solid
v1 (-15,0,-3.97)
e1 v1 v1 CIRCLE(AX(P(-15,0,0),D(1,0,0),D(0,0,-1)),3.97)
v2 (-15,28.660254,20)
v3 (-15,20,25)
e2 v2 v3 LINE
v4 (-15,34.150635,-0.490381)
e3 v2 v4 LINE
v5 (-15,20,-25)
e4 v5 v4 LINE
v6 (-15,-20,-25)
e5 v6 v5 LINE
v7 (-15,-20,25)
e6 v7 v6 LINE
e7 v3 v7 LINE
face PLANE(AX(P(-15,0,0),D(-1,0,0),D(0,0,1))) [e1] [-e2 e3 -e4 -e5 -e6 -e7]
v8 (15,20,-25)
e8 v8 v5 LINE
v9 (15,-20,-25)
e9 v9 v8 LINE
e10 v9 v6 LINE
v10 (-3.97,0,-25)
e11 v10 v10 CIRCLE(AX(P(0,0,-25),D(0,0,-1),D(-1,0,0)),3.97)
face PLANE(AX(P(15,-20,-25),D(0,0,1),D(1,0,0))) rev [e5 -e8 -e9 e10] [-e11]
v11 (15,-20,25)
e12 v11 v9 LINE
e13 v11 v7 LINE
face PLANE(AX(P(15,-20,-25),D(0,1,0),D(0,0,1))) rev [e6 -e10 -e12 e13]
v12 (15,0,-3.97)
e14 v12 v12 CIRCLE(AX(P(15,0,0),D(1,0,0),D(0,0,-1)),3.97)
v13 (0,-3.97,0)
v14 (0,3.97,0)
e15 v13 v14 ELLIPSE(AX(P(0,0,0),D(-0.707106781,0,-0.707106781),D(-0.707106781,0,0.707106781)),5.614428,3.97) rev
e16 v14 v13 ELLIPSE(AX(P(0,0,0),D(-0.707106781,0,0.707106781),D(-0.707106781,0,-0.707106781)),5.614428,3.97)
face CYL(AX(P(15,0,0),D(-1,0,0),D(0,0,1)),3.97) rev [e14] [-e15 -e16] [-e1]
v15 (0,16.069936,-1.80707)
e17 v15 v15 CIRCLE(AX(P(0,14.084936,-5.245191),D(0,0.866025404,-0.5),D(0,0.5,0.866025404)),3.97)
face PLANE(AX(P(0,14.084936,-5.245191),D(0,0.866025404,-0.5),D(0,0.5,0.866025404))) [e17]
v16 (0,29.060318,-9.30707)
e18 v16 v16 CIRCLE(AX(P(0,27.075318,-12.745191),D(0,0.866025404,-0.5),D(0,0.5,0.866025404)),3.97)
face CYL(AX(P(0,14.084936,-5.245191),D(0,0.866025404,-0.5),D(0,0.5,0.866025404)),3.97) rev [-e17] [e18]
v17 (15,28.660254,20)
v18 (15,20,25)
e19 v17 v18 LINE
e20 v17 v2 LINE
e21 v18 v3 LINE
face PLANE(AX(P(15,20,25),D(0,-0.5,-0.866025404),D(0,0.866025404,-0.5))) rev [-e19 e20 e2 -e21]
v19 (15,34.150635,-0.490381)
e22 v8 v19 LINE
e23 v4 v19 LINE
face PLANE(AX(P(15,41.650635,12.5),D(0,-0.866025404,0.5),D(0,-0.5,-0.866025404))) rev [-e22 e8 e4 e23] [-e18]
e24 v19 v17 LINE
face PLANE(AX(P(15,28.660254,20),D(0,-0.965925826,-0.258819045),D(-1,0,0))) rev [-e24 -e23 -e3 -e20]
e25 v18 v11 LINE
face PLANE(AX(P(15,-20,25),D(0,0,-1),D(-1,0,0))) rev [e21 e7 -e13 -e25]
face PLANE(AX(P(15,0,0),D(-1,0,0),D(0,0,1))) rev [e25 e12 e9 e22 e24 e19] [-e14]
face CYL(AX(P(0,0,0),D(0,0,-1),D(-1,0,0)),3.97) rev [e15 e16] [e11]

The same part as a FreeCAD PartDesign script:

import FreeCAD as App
import Part
import Sketcher
from FreeCAD import Vector
Q = App.Units.Quantity


def edges_at(feature, points):
    """Names of the edges that pass closest to the given points."""
    edges = feature.Shape.Edges
    near = lambda p: min(range(len(edges)), key=lambda i: edges[i].distToShape(Part.Vertex(*p))[0])
    return sorted({f"Edge{near(p) + 1}" for p in points})


def add_polygon(sketch, points):
    """Adds a closed chain of lines whose ends are joined by coincident constraints."""
    first, n = sketch.GeometryCount, len(points)
    for a, b in zip(points, points[1:] + points[:1]):
        sketch.addGeometry(Part.LineSegment(App.Vector(*a, 0), App.Vector(*b, 0)), False)
    for i in range(n):
        sketch.addConstraint(Sketcher.Constraint("Coincident", first + i, 2, first + (i + 1) % n, 1))

doc = App.newDocument("Part")
body = doc.addObject("PartDesign::Body", "Body")

# Sketch on YZ plane
sketch1 = body.newObject("Sketcher::SketchObject", "Sketch")
sketch1.AttachmentSupport = (doc.getObject("YZ_Plane"), [""])
sketch1.MapMode = "FlatFace"
add_polygon(sketch1, [(-20, 25), (-20, -25), (20, -25), (41.650635, 12.5), (20, 25)])  # lines 0-4
sketch1.addGeometry(Part.Circle(Vector(0, 0, 0), Vector(0, 0, 1), 3.97), False)  # 5
sketch1.addConstraint(Sketcher.Constraint("Vertical", 0))
sketch1.addConstraint(Sketcher.Constraint("Horizontal", 1))
sketch1.addConstraint(Sketcher.Constraint("Horizontal", 4))
sketch1.addConstraint(Sketcher.Constraint("Coincident", 5, 3, -1, 1))
sketch1.addConstraint(Sketcher.Constraint("Symmetric", 0, 2, 3, 2, -1, 1))
sketch1.addConstraint(Sketcher.Constraint("Perpendicular", 2, 3))
sketch1.addConstraint(Sketcher.Constraint("Vertical", 1, 2, 3, 2))
sketch1.addConstraint(Sketcher.Constraint("Diameter", 5, Q("7.94 mm")))
sketch1.addConstraint(Sketcher.Constraint("DistanceX", 1, 1, 1, 2, Q("40 mm")))
sketch1.addConstraint(Sketcher.Constraint("DistanceY", 0, 2, 0, 1, Q("50 mm")))
sketch1.addConstraint(Sketcher.Constraint("Angle", 2, Q("60 deg")))
pad1 = body.newObject("PartDesign::Pad", "Pad")
pad1.Profile = sketch1
pad1.Length = 30
pad1.Midplane = True

# Sketch on XY plane
sketch2 = body.newObject("Sketcher::SketchObject", "Sketch001")
sketch2.AttachmentSupport = (doc.getObject("XY_Plane"), [""])
sketch2.MapMode = "FlatFace"
sketch2.AttachmentOffset = App.Placement(Vector(0, 0, -25), App.Rotation())
sketch2.addGeometry(Part.Circle(Vector(0, 0, 0), Vector(0, 0, 1), 3.97), False)
sketch2.addConstraint(Sketcher.Constraint("Coincident", 0, 3, -1, 1))
sketch2.addConstraint(Sketcher.Constraint("Diameter", 0, Q("7.94 mm")))
pocket1 = body.newObject("PartDesign::Pocket", "Pocket")
pocket1.Profile = sketch2
pocket1.Length = 25
pocket1.Reversed = True
doc.recompute()

chamfer = body.newObject("PartDesign::Chamfer", "Chamfer")
chamfer.Base = (pocket1, edges_at(pocket1, [(0, 41.651, 12.5)]))
chamfer.Size = 15

# Sketch on an angled plane
sketch3 = body.newObject("Sketcher::SketchObject", "Sketch002")
sketch3.Placement = App.Placement(Vector(0, 25.825318, -14.910254), App.Rotation(Vector(1, 0, 0), Vector(0, -0.5, -0.866025404), Vector(0, 0.866025404, -0.5), "ZXY"))
sketch3.addGeometry(Part.Circle(Vector(0, -2.5, 0), Vector(0, 0, 1), 3.97), False)
sketch3.addConstraint(Sketcher.Constraint("PointOnObject", 0, 3, -2))
sketch3.addConstraint(Sketcher.Constraint("Diameter", 0, Q("7.94 mm")))
sketch3.addConstraint(Sketcher.Constraint("DistanceY", 0, 3, -1, 1, Q("2.5 mm")))
pocket2 = body.newObject("PartDesign::Pocket", "Pocket001")
pocket2.Profile = sketch3
pocket2.Length = 15

doc.recompute()
